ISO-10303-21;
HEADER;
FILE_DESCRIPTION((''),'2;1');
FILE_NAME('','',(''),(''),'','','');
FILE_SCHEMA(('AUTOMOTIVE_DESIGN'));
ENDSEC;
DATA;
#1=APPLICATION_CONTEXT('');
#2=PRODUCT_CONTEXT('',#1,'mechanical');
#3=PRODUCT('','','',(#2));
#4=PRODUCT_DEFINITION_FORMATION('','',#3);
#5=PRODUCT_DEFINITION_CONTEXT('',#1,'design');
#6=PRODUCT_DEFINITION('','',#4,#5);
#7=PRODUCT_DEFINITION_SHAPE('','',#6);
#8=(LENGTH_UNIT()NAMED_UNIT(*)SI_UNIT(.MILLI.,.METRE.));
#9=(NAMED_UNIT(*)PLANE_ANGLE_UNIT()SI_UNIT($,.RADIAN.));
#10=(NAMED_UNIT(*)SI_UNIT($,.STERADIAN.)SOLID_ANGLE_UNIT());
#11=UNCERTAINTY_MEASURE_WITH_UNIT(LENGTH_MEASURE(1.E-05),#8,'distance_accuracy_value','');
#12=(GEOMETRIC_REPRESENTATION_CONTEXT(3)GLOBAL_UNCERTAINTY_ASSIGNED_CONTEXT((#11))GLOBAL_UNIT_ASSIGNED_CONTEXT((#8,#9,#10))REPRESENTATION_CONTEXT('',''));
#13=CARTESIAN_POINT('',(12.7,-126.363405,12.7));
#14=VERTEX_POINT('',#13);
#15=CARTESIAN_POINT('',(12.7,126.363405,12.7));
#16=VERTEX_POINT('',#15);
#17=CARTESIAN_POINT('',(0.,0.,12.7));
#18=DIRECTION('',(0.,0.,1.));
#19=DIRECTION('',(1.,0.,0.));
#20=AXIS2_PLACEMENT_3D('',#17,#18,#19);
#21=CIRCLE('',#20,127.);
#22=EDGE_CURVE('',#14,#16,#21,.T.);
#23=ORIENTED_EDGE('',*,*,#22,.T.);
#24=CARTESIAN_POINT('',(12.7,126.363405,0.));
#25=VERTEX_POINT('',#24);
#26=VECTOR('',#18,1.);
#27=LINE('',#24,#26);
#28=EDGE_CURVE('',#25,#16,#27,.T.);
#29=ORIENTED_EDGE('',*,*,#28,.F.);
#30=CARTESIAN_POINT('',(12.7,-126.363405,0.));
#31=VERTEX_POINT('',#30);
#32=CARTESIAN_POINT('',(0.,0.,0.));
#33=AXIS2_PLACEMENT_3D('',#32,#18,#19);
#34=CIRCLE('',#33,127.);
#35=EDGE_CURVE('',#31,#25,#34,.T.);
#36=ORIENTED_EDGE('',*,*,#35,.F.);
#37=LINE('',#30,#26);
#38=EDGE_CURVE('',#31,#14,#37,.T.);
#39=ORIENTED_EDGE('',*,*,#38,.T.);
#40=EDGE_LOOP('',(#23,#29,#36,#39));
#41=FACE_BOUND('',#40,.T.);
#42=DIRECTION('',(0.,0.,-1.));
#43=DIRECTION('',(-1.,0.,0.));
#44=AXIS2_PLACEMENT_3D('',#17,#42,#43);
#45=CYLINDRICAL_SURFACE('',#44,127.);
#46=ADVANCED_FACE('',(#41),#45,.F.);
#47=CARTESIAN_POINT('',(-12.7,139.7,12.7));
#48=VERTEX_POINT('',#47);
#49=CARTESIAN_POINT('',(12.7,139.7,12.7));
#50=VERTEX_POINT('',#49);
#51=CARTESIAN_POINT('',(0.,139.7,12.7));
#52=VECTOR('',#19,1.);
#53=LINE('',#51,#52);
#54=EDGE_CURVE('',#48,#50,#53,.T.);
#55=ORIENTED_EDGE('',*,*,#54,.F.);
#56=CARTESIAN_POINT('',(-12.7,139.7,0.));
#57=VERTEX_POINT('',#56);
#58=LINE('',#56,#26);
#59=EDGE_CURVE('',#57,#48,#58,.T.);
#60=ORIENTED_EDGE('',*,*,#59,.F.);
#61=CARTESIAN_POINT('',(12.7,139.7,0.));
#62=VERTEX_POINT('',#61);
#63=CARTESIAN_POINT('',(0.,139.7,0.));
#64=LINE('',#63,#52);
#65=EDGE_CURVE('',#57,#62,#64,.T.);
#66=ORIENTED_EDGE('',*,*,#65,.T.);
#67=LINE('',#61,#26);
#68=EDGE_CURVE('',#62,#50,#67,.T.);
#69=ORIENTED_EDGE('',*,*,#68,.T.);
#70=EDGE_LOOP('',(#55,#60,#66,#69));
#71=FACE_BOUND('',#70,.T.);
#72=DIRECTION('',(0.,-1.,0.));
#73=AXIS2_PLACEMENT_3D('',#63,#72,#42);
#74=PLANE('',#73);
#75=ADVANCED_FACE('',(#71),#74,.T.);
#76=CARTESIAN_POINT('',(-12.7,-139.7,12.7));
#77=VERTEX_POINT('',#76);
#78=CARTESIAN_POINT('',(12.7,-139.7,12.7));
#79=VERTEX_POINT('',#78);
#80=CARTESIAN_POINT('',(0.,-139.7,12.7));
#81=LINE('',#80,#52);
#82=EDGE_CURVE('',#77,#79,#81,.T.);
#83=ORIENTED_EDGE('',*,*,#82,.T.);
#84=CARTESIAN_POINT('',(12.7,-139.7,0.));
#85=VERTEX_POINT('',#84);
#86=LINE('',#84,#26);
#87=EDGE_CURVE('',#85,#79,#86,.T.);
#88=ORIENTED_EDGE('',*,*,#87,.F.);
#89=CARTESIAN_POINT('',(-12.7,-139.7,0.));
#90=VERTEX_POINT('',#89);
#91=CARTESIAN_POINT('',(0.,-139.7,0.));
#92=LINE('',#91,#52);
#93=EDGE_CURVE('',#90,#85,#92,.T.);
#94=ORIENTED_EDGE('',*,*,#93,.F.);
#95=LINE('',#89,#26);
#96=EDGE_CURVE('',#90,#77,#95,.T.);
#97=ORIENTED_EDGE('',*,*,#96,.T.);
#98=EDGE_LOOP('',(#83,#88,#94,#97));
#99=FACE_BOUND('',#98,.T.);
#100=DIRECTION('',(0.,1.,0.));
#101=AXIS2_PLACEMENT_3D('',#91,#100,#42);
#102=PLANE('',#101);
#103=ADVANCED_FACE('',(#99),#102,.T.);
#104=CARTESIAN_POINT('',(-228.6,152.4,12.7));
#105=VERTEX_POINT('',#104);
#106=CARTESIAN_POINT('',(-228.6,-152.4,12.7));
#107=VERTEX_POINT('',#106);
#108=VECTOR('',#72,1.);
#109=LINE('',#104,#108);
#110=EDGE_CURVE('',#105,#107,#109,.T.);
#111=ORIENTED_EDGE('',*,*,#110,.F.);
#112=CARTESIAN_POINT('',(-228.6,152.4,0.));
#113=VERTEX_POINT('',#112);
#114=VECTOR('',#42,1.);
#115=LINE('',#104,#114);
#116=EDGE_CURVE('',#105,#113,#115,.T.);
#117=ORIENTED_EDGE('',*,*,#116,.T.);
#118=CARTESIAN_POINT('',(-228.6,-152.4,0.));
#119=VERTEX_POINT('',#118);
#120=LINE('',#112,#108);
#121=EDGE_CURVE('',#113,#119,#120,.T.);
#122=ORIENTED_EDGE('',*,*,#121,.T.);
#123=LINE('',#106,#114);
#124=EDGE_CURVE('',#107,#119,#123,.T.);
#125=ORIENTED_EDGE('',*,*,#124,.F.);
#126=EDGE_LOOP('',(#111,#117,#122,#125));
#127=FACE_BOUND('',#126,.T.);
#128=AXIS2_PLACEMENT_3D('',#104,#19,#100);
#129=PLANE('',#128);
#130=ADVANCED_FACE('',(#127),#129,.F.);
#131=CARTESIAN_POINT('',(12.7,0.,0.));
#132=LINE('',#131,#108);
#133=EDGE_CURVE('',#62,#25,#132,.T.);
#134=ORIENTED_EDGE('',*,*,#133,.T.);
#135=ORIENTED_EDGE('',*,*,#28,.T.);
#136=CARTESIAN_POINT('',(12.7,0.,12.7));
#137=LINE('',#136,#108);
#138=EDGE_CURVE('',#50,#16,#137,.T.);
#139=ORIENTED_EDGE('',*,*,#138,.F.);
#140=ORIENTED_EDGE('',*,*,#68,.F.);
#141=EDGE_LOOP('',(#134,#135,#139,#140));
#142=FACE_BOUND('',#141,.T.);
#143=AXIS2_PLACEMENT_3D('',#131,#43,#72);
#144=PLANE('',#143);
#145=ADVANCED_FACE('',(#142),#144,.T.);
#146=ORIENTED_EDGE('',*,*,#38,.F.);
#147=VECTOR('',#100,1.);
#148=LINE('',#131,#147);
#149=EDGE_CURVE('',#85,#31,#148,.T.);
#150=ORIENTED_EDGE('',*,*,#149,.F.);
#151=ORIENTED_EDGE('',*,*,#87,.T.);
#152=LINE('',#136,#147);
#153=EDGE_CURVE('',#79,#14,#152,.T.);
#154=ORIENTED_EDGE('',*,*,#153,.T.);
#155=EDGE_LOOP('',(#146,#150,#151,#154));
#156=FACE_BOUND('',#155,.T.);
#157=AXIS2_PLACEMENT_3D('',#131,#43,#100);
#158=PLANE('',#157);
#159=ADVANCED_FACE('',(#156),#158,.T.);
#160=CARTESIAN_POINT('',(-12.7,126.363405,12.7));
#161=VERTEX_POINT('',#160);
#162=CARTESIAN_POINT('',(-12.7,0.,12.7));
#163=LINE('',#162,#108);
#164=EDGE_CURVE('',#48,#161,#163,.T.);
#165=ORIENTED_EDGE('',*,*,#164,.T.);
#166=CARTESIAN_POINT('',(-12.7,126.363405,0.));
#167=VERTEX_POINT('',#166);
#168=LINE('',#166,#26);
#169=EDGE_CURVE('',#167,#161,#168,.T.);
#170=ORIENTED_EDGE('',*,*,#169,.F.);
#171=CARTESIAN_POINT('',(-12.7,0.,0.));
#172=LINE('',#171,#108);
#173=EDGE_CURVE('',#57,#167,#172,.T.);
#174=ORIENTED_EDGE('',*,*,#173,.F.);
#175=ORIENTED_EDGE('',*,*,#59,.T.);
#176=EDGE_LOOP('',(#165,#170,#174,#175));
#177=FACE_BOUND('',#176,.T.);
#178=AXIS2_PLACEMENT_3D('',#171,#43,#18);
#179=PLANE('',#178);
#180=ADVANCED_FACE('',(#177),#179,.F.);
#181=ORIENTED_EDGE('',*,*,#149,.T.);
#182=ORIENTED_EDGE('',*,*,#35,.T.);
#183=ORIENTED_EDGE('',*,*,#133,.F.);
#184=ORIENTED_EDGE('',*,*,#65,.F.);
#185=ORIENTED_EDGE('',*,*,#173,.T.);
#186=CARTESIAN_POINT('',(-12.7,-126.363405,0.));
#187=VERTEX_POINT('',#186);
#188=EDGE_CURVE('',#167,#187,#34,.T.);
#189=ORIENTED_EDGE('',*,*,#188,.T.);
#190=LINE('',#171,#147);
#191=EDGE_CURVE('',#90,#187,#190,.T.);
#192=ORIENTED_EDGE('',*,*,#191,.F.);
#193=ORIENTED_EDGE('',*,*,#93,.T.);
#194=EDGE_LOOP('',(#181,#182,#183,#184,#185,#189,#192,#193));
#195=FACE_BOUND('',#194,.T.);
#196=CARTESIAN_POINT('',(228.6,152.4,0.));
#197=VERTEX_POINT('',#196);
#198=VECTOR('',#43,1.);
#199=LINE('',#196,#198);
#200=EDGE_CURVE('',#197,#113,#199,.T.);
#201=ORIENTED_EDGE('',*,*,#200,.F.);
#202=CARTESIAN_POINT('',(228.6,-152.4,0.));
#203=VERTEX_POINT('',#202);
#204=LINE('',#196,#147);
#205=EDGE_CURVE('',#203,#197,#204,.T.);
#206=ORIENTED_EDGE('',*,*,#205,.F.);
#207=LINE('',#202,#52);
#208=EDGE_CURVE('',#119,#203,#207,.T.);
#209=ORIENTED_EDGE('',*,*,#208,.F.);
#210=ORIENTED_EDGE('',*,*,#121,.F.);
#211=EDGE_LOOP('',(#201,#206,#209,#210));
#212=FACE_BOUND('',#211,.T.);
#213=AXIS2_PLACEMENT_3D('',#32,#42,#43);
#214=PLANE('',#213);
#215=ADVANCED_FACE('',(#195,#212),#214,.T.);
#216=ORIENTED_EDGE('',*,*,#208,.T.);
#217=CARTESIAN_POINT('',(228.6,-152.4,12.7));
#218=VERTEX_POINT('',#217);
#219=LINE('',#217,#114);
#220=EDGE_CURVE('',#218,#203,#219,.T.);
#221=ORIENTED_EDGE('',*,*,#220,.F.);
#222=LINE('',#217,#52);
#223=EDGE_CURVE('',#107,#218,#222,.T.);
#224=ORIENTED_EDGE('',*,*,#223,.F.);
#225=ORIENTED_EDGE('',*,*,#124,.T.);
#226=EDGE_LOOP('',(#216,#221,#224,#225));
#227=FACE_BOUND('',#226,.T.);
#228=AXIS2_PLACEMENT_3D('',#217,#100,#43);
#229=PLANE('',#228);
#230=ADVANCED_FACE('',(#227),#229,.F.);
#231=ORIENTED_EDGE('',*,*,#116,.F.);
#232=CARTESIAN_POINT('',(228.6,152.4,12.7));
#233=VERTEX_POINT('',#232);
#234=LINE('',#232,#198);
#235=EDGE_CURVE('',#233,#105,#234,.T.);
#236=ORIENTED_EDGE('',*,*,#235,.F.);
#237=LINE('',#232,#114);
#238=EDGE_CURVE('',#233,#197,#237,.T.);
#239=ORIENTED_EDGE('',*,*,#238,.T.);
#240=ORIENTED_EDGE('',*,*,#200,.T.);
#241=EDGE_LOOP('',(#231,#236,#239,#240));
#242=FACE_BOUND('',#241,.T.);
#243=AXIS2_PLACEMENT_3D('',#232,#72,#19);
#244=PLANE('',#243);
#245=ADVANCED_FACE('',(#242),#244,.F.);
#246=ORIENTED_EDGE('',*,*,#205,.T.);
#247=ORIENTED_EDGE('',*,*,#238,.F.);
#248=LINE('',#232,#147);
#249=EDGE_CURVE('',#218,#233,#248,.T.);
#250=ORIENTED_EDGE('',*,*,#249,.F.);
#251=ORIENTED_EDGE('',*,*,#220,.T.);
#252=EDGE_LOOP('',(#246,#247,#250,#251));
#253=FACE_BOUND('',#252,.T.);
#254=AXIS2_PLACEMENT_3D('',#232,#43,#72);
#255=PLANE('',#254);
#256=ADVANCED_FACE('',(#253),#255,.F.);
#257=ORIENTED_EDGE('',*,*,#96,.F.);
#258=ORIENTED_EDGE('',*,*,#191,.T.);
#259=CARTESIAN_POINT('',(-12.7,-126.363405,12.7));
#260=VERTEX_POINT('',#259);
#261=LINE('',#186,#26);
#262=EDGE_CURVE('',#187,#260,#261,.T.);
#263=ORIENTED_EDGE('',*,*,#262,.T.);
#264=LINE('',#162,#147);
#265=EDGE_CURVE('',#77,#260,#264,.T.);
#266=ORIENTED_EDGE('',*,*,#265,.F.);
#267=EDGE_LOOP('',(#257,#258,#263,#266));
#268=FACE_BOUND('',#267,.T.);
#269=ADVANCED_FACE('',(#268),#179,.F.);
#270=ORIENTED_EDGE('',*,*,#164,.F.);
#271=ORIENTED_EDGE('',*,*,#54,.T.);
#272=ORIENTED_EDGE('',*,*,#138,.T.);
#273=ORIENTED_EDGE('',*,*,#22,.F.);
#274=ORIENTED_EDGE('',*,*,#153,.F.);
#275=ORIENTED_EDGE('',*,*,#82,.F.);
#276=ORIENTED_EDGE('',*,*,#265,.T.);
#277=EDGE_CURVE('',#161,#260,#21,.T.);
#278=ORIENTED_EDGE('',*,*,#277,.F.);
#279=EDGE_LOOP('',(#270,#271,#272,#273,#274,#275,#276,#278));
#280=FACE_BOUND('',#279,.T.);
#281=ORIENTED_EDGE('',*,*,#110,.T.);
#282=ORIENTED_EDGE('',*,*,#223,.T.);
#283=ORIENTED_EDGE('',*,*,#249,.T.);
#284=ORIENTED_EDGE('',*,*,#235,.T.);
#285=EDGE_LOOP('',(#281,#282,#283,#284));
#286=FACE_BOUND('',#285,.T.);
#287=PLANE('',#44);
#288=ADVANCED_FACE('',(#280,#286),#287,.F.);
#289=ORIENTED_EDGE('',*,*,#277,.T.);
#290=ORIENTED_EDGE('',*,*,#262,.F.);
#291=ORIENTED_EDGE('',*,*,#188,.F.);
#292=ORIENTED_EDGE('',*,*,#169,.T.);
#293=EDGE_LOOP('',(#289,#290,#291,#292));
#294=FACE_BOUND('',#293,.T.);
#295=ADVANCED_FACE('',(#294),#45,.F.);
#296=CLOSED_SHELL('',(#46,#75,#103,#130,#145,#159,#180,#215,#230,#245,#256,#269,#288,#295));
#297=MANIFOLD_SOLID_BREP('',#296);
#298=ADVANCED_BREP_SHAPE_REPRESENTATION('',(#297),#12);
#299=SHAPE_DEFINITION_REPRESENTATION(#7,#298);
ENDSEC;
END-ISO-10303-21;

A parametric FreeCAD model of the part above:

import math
import FreeCAD as App
import Part
import Sketcher
Q = App.Units.Quantity


def add_polygon(sketch, points):
    """Adds a closed chain of lines whose ends are joined by coincident constraints."""
    first, n = sketch.GeometryCount, len(points)
    for a, b in zip(points, points[1:] + points[:1]):
        sketch.addGeometry(Part.LineSegment(App.Vector(*a, 0), App.Vector(*b, 0)), False)
    for i in range(n):
        sketch.addConstraint(Sketcher.Constraint("Coincident", first + i, 2, first + (i + 1) % n, 1))

doc = App.newDocument("Part")
params = doc.addObject("Spreadsheet::Sheet", "Params")
for row, (alias, value) in enumerate([
    ("sketch1_diameter", "10 in"),
    ("sketch1_width", "18 in"),
    ("sketch1_height", "12 in"),
    ("pad1_length", "0.5 in"),
    ("sketch2_radius", "5 in"),
    ("sketch2_width", "1 in"),
], start=1):
    params.set(f"A{row}", alias)
    params.set(f"B{row}", "=" + value)
    params.setAlias(f"B{row}", alias)

body = doc.addObject("PartDesign::Body", "Body")

sketch1 = body.newObject("Sketcher::SketchObject", "Sketch")
sketch1.AttachmentSupport = (doc.getObject("XY_Plane"), [""])
sketch1.MapMode = "FlatFace"
add_polygon(sketch1, [(-229, 152), (-229, -152), (229, -152), (229, 152)])
sketch1.addGeometry(Part.Circle(App.Vector(0, 0, 0), App.Vector(0, 0, 1), 127), False)
sketch1.addConstraint(Sketcher.Constraint("Vertical", 0))
sketch1.addConstraint(Sketcher.Constraint("Horizontal", 1))
sketch1.addConstraint(Sketcher.Constraint("Vertical", 2))
sketch1.addConstraint(Sketcher.Constraint("Horizontal", 3))
sketch1.addConstraint(Sketcher.Constraint("Coincident", 4, 3, -1, 1))
sketch1.addConstraint(Sketcher.Constraint("Symmetric", 0, 2, 2, 2, -1, 1))
sketch1.addConstraint(Sketcher.Constraint("Diameter", 4, Q("10 in")))
sketch1.addConstraint(Sketcher.Constraint("DistanceX", 1, 1, 1, 2, Q("18 in")))
sketch1.addConstraint(Sketcher.Constraint("DistanceY", 0, 2, 0, 1, Q("12 in")))
sketch1.setExpression("Constraints[10]", "Params.sketch1_diameter")
sketch1.setExpression("Constraints[11]", "Params.sketch1_width")
sketch1.setExpression("Constraints[12]", "Params.sketch1_height")
pad1 = body.newObject("PartDesign::Pad", "Pad")
pad1.Profile = sketch1
pad1.setExpression("Length", "Params.pad1_length")

sketch2 = body.newObject("Sketcher::SketchObject", "Sketch001")
sketch2.AttachmentSupport = (doc.getObject("XY_Plane"), [""])
sketch2.MapMode = "FlatFace"
sketch2.AttachmentOffset = App.Placement(App.Vector(0, 0, 0.5 * 25.4), App.Rotation())
sketch2.addGeometry(Part.LineSegment(App.Vector(-13, 140, 0), App.Vector(-13, 126, 0)), False)
sketch2.addGeometry(Part.ArcOfCircle(Part.Circle(App.Vector(0, 0, 0), App.Vector(0, 0, 1), 127), math.radians(90), math.radians(95.74)), False)
sketch2.addGeometry(Part.ArcOfCircle(Part.Circle(App.Vector(0, 0, 0), App.Vector(0, 0, 1), 127), math.radians(84.26), math.radians(90)), False)
sketch2.addGeometry(Part.LineSegment(App.Vector(13, 126, 0), App.Vector(13, 140, 0)), False)
sketch2.addGeometry(Part.LineSegment(App.Vector(13, 140, 0), App.Vector(-13, 140, 0)), False)
sketch2.addConstraint(Sketcher.Constraint("Coincident", 0, 2, 1, 2))
sketch2.addConstraint(Sketcher.Constraint("Tangent", 1, 1, 2, 2))
sketch2.addConstraint(Sketcher.Constraint("Coincident", 2, 1, 3, 1))
sketch2.addConstraint(Sketcher.Constraint("Coincident", 3, 2, 4, 1))
sketch2.addConstraint(Sketcher.Constraint("Coincident", 4, 2, 0, 1))
sketch2.addConstraint(Sketcher.Constraint("Vertical", 0))
sketch2.addConstraint(Sketcher.Constraint("Vertical", 3))
sketch2.addConstraint(Sketcher.Constraint("Horizontal", 4))
sketch2.addConstraint(Sketcher.Constraint("Coincident", 1, 3, -1, 1))
sketch2.addConstraint(Sketcher.Constraint("Equal", 1, 2))
sketch2.addConstraint(Sketcher.Constraint("PointOnObject", 1, 1, -2))
sketch2.addConstraint(Sketcher.Constraint("Horizontal", 0, 2, 2, 1))
sketch2.addConstraint(Sketcher.Constraint("Radius", 1, Q("5 in")))
sketch2.addConstraint(Sketcher.Constraint("DistanceX", 4, 2, 4, 1, Q("1 in")))
sketch2.addConstraint(Sketcher.Constraint("DistanceY", -1, 1, 3, 2, Q("5.5 in")))
sketch2.setExpression("Constraints[12]", "Params.sketch2_radius")
sketch2.setExpression("Constraints[13]", "Params.sketch2_width")
pocket1 = body.newObject("PartDesign::Pocket", "Pocket")
pocket1.Profile = sketch2
pocket1.Type = "ThroughAll"
doc.recompute()

mirrored = body.newObject("PartDesign::Mirrored", "Mirrored")
mirrored.Originals = [pocket1]
mirrored.MirrorPlane = (doc.getObject("XZ_Plane"), [""])
body.Tip = mirrored

doc.recompute()
